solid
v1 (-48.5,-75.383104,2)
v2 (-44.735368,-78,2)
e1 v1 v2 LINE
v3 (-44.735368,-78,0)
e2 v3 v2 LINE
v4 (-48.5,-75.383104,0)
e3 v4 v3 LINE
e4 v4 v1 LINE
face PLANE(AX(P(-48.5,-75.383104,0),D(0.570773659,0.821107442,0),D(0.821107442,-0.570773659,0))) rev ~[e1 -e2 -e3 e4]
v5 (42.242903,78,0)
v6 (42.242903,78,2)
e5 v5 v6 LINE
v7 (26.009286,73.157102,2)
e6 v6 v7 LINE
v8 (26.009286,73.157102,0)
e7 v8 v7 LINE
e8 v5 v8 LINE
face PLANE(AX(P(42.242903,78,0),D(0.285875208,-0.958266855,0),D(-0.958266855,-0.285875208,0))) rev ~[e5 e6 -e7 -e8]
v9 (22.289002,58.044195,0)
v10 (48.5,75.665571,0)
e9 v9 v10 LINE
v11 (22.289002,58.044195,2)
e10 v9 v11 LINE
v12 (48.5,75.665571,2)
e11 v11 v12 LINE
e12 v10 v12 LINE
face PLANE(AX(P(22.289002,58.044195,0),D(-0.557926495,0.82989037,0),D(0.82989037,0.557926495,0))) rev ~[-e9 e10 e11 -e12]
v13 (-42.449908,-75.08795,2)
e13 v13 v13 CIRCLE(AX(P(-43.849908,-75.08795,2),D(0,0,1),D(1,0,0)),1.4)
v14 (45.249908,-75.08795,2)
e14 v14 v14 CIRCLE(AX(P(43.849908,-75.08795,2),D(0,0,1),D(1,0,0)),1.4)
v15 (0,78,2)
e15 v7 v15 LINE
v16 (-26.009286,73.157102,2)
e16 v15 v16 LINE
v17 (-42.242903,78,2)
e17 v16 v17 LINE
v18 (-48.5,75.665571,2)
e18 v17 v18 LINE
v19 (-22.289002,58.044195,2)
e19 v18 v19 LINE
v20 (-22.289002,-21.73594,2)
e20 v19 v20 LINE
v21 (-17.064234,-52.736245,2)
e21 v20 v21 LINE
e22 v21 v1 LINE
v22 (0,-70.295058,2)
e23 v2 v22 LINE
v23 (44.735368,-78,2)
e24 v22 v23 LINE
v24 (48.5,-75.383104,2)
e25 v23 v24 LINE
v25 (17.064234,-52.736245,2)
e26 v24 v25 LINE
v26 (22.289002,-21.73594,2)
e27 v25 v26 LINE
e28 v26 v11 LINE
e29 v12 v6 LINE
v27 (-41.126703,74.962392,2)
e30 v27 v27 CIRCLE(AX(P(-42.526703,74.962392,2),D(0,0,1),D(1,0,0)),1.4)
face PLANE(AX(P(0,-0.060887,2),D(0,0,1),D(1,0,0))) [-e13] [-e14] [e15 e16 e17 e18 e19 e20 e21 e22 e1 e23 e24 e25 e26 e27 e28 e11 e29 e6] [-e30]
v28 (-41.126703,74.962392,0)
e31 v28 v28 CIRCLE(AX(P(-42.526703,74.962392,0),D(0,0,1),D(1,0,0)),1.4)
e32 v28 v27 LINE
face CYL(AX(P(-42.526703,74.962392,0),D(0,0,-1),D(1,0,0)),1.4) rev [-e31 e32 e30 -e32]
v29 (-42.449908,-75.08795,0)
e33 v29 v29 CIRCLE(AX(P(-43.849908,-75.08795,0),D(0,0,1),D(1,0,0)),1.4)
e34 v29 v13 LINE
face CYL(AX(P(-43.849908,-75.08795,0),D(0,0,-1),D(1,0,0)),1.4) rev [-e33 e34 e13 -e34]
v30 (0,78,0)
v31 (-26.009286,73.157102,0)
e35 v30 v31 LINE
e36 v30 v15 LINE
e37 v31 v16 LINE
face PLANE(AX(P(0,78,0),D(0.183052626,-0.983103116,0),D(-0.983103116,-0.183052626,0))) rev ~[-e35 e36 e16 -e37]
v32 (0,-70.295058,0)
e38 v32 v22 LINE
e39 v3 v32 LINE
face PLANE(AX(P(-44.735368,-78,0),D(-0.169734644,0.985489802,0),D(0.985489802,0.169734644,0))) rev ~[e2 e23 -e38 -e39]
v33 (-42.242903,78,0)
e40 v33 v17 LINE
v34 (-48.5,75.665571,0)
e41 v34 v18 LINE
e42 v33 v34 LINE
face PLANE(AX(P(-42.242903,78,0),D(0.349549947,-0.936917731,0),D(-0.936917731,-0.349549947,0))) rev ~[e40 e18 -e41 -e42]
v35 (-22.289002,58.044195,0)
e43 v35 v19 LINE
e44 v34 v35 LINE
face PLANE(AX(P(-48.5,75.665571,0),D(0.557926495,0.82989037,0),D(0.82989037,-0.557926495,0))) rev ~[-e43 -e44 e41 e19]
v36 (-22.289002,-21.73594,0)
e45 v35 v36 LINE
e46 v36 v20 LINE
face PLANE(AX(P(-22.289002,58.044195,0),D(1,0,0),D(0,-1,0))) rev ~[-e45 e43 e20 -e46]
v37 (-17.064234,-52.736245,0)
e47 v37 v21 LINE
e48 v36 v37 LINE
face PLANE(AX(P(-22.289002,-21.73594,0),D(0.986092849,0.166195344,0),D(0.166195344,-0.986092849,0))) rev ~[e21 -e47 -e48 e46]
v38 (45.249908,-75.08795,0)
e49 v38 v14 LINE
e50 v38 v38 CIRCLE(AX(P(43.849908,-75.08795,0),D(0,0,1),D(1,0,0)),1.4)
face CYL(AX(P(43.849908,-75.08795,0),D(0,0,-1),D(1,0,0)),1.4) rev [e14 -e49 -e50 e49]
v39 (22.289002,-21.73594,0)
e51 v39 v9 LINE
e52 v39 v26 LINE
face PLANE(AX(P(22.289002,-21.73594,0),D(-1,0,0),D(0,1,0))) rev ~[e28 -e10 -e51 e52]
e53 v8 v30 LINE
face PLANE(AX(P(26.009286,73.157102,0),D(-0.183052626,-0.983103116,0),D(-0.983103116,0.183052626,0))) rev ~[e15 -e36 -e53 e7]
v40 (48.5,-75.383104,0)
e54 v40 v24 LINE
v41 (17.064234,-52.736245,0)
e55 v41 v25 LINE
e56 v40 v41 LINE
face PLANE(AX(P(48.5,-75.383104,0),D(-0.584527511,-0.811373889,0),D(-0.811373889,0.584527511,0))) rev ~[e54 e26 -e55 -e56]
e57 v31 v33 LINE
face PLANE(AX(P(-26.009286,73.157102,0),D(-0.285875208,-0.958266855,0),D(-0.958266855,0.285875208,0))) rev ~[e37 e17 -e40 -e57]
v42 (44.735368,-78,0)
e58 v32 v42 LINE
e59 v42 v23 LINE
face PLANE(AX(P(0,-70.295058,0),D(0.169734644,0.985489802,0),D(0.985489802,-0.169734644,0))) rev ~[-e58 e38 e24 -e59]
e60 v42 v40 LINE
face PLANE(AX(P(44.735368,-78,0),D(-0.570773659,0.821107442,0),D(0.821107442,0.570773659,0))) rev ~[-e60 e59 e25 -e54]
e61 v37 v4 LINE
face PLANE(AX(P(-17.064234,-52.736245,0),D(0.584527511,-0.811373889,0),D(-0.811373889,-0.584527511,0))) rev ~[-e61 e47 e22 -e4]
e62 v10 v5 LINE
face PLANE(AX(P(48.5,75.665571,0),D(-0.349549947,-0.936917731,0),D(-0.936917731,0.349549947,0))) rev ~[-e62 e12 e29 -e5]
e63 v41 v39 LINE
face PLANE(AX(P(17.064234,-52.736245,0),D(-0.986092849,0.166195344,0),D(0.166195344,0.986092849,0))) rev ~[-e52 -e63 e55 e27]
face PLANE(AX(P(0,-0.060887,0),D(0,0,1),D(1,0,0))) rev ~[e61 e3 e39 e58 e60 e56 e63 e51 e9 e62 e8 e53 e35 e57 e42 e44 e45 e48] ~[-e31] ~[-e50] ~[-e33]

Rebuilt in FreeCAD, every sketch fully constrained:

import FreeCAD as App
import Part
import Sketcher
Q = App.Units.Quantity


def add_polygon(sketch, points):
    """Adds a closed chain of lines whose ends are joined by coincident constraints."""
    first, n = sketch.GeometryCount, len(points)
    for a, b in zip(points, points[1:] + points[:1]):
        sketch.addGeometry(Part.LineSegment(App.Vector(*a, 0), App.Vector(*b, 0)), False)
    for i in range(n):
        sketch.addConstraint(Sketcher.Constraint("Coincident", first + i, 2, first + (i + 1) % n, 1))

doc = App.newDocument("Part")
body = doc.addObject("PartDesign::Body", "Body")

sketch1 = body.newObject("Sketcher::SketchObject", "Sketch")
sketch1.AttachmentSupport = (doc.getObject("XY_Plane"), [""])
sketch1.MapMode = "FlatFace"
add_polygon(sketch1, [(26.009286, 73.157102), (0, 78), (-26.009286, 73.157102), (-42.242903, 78), (-48.5, 75.665571), (-22.289002, 58.044195), (-22.289002, -21.73594), (-17.064234, -52.736245), (-48.5, -75.383104), (-44.735368, -78), (0, -70.295058), (44.735368, -78), (48.5, -75.383104), (17.064234, -52.736245), (22.289002, -21.73594), (22.289002, 58.044195), (48.5, 75.665571), (42.242903, 78)])
sketch1.addGeometry(Part.Circle(App.Vector(-43.849908, -75.08795, 0), App.Vector(0, 0, 1), 1.4), False)
sketch1.addGeometry(Part.Circle(App.Vector(43.849908, -75.08795, 0), App.Vector(0, 0, 1), 1.4), False)
sketch1.addGeometry(Part.Circle(App.Vector(-42.526703, 74.962392, 0), App.Vector(0, 0, 1), 1.4), False)
sketch1.addConstraint(Sketcher.Constraint("Vertical", 5))
sketch1.addConstraint(Sketcher.Constraint("Vertical", 14))
sketch1.addConstraint(Sketcher.Constraint("Equal", 18, 19))
sketch1.addConstraint(Sketcher.Constraint("Equal", 19, 20))
sketch1.addConstraint(Sketcher.Constraint("Symmetric", 18, 3, 19, 3, -2))
sketch1.addConstraint(Sketcher.Constraint("Symmetric", 8, 2, 10, 2, -2))
sketch1.addConstraint(Sketcher.Constraint("Symmetric", 7, 2, 11, 2, -2))
sketch1.addConstraint(Sketcher.Constraint("Symmetric", 6, 2, 12, 2, -2))
sketch1.addConstraint(Sketcher.Constraint("Symmetric", 5, 2, 13, 2, -2))
sketch1.addConstraint(Sketcher.Constraint("Symmetric", 3, 2, 15, 2, -2))
sketch1.addConstraint(Sketcher.Constraint("Symmetric", 2, 2, 16, 2, -2))
sketch1.addConstraint(Sketcher.Constraint("Symmetric", 1, 2, 17, 2, -2))
sketch1.addConstraint(Sketcher.Constraint("PointOnObject", 0, 2, -2))
sketch1.addConstraint(Sketcher.Constraint("PointOnObject", 9, 2, -2))
sketch1.addConstraint(Sketcher.Constraint("Horizontal", 0, 2, 2, 2))
sketch1.addConstraint(Sketcher.Constraint("Horizontal", 4, 2, 14, 2))
sketch1.addConstraint(Sketcher.Constraint("Vertical", 3, 2, 7, 2))
sketch1.addConstraint(Sketcher.Constraint("Diameter", 18, Q("2.8 mm")))
sketch1.addConstraint(Sketcher.Constraint("DistanceY", -1, 1, 0, 2, Q("78 mm")))
sketch1.addConstraint(Sketcher.Constraint("DistanceY", 8, 2, -1, 1, Q("78 mm")))
sketch1.addConstraint(Sketcher.Constraint("DistanceX", 3, 2, -1, 1, Q("48.5 mm")))
sketch1.addConstraint(Sketcher.Constraint("DistanceX", 4, 2, -1, 1, Q("22.289002 mm")))
sketch1.addConstraint(Sketcher.Constraint("Distance", 2, Q("16.940602 mm")))
sketch1.addConstraint(Sketcher.Constraint("DistanceY", -1, 1, 1, 2, Q("73.157102 mm")))
sketch1.addConstraint(Sketcher.Constraint("DistanceX", 20, 3, 2, 2, Q("0.2838 mm")))
sketch1.addConstraint(Sketcher.Constraint("DistanceX", 20, 3, 4, 2, Q("20.237701 mm")))
sketch1.addConstraint(Sketcher.Constraint("DistanceY", 7, 2, 4, 2, Q("133.427299 mm")))
sketch1.addConstraint(Sketcher.Constraint("Distance", 6, Q("31.437511 mm")))
sketch1.addConstraint(Sketcher.Constraint("Distance", 7, Q("38.743872 mm")))
sketch1.addConstraint(Sketcher.Constraint("DistanceY", 5, 2, 5, 1, Q("79.780135 mm")))
sketch1.addConstraint(Sketcher.Constraint("DistanceY", 18, 3, -1, 1, Q("75.08795 mm")))
sketch1.addConstraint(Sketcher.Constraint("DistanceY", -1, 1, 20, 3, Q("74.962392 mm")))
sketch1.addConstraint(Sketcher.Constraint("DistanceY", -1, 1, 3, 2, Q("75.665571 mm")))
sketch1.addConstraint(Sketcher.Constraint("DistanceY", 5, 2, -1, 1, Q("21.73594 mm")))
sketch1.addConstraint(Sketcher.Constraint("DistanceX", 20, 3, 19, 3, Q("86.376611 mm")))
sketch1.addConstraint(Sketcher.Constraint("DistanceX", 8, 2, 18, 3, Q("0.88546 mm")))
sketch1.addConstraint(Sketcher.Constraint("Distance", 9, Q("45.394045 mm")))
pad1 = body.newObject("PartDesign::Pad", "Pad")
pad1.Profile = sketch1
pad1.Length = 2

doc.recompute()
